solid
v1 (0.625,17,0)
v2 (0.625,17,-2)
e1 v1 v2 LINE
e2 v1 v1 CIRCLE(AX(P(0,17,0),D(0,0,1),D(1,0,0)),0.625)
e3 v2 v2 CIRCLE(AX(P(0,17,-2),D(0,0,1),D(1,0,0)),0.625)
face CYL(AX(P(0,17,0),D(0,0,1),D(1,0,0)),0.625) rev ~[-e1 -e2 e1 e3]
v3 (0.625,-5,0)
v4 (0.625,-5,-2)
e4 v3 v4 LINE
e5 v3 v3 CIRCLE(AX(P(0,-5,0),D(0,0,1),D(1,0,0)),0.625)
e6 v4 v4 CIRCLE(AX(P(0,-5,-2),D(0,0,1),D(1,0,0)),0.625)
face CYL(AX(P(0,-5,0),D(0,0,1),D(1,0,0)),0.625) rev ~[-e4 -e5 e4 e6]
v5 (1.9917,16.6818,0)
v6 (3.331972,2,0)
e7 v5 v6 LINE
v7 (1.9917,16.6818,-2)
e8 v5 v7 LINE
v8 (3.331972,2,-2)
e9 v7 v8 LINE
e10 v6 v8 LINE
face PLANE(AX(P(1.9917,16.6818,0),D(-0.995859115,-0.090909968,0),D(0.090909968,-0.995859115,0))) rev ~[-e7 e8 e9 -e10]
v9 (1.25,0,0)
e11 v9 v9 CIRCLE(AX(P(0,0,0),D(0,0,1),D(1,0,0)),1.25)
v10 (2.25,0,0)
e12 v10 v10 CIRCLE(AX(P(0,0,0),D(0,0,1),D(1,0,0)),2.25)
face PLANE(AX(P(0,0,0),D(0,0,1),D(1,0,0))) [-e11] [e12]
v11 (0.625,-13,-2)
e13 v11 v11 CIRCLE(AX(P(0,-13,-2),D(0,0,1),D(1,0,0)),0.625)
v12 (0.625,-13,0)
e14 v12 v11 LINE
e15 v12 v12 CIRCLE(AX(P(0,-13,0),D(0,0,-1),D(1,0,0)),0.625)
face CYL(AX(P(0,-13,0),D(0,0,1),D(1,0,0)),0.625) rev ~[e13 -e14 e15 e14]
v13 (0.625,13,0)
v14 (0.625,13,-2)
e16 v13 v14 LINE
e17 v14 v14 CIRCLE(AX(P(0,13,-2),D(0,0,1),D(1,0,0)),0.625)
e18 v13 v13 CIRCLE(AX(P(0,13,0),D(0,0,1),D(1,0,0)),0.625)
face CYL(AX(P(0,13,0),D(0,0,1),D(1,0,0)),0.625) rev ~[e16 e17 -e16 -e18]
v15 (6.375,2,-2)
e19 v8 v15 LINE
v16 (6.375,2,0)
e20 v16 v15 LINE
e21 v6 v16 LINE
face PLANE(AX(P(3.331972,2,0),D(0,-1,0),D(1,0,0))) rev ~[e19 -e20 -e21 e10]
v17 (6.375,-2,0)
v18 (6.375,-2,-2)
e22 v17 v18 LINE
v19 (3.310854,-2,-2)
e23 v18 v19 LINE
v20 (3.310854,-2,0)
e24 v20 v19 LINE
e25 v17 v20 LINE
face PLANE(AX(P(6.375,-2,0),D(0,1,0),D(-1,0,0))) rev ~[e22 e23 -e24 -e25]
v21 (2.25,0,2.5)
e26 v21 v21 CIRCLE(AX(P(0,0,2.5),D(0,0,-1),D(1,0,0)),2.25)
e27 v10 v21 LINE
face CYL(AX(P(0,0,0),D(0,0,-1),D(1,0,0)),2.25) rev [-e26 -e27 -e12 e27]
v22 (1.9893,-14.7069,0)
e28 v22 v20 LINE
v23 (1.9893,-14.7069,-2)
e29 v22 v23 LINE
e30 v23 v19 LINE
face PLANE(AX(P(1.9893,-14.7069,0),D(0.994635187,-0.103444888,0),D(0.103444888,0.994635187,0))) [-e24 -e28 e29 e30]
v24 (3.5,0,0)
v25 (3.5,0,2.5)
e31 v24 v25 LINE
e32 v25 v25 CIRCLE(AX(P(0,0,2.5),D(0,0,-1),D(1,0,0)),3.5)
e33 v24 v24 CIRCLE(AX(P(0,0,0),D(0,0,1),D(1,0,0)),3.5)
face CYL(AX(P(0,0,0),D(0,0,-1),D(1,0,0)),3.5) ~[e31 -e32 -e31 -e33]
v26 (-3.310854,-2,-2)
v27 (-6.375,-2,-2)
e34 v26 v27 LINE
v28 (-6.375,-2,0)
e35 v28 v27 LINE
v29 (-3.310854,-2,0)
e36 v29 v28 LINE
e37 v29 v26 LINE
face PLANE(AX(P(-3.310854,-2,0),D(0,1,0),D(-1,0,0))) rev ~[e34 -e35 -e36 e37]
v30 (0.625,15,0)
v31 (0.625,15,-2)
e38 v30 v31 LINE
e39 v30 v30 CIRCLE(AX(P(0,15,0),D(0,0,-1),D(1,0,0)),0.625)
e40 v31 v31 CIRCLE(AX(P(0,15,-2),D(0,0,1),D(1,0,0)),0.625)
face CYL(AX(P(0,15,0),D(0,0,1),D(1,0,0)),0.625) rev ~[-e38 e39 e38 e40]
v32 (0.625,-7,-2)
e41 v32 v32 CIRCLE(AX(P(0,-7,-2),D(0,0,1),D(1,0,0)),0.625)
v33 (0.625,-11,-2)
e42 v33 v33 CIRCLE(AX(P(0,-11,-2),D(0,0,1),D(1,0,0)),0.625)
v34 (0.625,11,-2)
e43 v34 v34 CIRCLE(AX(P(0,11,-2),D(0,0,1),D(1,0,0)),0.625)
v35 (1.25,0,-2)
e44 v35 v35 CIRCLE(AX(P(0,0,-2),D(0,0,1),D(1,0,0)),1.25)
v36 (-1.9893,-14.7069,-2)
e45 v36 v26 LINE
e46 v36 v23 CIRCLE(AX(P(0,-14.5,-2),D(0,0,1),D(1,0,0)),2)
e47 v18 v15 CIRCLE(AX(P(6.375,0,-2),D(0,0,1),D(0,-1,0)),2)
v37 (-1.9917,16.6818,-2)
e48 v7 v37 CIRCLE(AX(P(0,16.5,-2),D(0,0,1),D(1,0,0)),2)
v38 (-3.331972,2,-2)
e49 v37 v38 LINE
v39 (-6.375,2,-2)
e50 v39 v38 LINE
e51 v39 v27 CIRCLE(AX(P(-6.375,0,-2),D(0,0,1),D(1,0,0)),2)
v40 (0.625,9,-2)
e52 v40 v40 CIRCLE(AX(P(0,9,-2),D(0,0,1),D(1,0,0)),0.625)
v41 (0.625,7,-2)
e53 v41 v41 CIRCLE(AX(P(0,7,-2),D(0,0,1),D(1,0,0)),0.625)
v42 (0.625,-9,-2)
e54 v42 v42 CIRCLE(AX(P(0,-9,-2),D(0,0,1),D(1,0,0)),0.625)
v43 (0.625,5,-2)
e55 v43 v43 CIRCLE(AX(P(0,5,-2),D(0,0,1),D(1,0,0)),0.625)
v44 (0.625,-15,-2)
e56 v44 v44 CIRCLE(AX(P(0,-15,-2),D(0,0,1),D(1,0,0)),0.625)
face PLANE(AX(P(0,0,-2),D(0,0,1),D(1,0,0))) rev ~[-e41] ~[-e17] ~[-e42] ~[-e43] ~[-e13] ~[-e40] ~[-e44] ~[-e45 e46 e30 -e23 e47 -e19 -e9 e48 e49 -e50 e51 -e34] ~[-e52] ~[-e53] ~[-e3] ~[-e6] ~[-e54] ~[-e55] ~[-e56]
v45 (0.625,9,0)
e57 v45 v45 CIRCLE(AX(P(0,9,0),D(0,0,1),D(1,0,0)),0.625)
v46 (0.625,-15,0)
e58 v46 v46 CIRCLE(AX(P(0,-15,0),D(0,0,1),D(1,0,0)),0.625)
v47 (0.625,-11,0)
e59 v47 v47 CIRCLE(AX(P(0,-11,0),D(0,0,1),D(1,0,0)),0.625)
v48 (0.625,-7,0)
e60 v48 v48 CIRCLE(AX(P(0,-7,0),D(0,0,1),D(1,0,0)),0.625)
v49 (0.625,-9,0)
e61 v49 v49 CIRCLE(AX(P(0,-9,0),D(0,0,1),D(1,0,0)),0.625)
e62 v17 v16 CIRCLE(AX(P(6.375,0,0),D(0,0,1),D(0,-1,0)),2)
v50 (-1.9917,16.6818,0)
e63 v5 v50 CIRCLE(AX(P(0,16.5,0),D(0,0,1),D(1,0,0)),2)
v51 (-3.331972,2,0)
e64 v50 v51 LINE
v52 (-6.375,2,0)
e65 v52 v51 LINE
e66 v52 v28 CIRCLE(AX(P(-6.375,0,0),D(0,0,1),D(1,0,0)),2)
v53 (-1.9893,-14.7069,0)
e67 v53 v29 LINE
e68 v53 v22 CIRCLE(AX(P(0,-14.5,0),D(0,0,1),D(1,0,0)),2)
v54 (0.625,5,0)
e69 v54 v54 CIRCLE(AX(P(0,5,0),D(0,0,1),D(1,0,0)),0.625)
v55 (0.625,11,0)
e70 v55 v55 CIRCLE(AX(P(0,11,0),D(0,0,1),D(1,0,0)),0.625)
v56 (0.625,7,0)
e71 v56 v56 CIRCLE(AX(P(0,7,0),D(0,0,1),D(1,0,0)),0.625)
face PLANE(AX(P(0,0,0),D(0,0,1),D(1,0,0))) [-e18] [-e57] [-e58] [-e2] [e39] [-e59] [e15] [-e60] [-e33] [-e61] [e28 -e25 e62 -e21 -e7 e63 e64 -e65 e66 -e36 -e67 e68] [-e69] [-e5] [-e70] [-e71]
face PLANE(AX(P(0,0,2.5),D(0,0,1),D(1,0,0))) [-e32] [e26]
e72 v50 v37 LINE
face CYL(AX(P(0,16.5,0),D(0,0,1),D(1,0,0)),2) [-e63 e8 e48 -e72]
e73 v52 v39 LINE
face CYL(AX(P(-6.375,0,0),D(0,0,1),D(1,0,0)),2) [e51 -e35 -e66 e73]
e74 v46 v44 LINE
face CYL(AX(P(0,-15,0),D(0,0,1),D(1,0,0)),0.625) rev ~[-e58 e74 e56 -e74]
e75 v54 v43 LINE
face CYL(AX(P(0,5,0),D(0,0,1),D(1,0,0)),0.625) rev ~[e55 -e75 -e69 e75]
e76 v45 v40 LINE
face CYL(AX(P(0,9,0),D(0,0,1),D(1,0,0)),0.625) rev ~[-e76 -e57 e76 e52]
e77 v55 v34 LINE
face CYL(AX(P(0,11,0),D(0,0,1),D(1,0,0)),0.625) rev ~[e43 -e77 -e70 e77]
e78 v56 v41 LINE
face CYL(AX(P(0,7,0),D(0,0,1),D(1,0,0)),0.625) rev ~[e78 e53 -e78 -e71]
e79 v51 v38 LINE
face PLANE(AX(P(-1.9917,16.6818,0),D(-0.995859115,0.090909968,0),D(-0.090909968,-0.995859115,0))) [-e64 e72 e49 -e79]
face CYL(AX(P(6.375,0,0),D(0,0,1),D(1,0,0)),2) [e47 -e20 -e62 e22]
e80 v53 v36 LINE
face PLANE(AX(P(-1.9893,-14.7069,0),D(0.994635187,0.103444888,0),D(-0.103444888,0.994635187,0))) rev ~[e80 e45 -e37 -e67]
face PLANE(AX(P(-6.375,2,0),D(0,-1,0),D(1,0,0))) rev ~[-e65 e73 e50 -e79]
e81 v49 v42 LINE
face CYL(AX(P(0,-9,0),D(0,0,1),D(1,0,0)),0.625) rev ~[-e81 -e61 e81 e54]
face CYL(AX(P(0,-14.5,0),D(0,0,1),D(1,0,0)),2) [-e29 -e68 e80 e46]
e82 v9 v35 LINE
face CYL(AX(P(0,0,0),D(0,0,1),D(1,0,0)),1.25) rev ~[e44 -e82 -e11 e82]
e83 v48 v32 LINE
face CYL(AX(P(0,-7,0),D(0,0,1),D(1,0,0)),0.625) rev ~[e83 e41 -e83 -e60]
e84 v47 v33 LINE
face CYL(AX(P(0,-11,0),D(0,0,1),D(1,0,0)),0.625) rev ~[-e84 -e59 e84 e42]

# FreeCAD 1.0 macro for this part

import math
import FreeCAD as App
import Part
import Sketcher
from FreeCAD import Vector
Q = App.Units.Quantity

doc = App.newDocument("Part")
body = doc.addObject("PartDesign::Body", "Body")

# Sketch on XY plane
sketch1 = doc.addObject("Sketcher::SketchObject", "Sketch")
body.addObject(sketch1)
sketch1.AttachmentSupport = (doc.XY_Plane, [""])
sketch1.MapMode = "FlatFace"
sketch1.addGeometry(Part.Circle(Vector(0, 0, 0), Vector(0, 0, 1), 3.5), False)
sketch1.addGeometry(Part.Circle(Vector(0, 0, 0), Vector(0, 0, 1), 2.2), False)
sketch1.addConstraint(Sketcher.Constraint("Coincident", 0, 3, -1, 1))
sketch1.addConstraint(Sketcher.Constraint("Coincident", 1, 3, -1, 1))
sketch1.addConstraint(Sketcher.Constraint("Diameter", 0, Q("7 mm")))
sketch1.addConstraint(Sketcher.Constraint("Diameter", 1, Q("4.5 mm")))
pad1 = doc.addObject("PartDesign::Pad", "Pad")
body.addObject(pad1)
pad1.Profile = sketch1
pad1.Length = 2.5

# Sketch on XY plane
sketch2 = doc.addObject("Sketcher::SketchObject", "Sketch001")
body.addObject(sketch2)
sketch2.AttachmentSupport = (doc.XY_Plane, [""])
sketch2.MapMode = "FlatFace"
sketch2.addGeometry(Part.LineSegment(Vector(6.4, 2, 0), Vector(3.3, 2, 0)), False)
sketch2.addGeometry(Part.LineSegment(Vector(3.3, 2, 0), Vector(2, 16.7, 0)), False)
sketch2.addGeometry(Part.ArcOfCircle(Part.Circle(Vector(0, 16.5, 0), Vector(0, 0, 1), 2), math.radians(5), math.radians(175)), False)
sketch2.addGeometry(Part.LineSegment(Vector(-2, 16.7, 0), Vector(-3.3, 2, 0)), False)
sketch2.addGeometry(Part.LineSegment(Vector(-3.3, 2, 0), Vector(-6.4, 2, 0)), False)
sketch2.addGeometry(Part.ArcOfCircle(Part.Circle(Vector(-6.4, 0, 0), Vector(0, 0, 1), 2), math.radians(90), math.radians(270)), False)
sketch2.addGeometry(Part.LineSegment(Vector(-6.4, -2, 0), Vector(-3.3, -2, 0)), False)
sketch2.addGeometry(Part.LineSegment(Vector(-3.3, -2, 0), Vector(-2, -14.7, 0)), False)
sketch2.addGeometry(Part.ArcOfCircle(Part.Circle(Vector(0, -14.5, 0), Vector(0, 0, 1), 2), math.radians(-174), math.radians(-6)), False)
sketch2.addGeometry(Part.LineSegment(Vector(2, -14.7, 0), Vector(3.3, -2, 0)), False)
sketch2.addGeometry(Part.LineSegment(Vector(3.3, -2, 0), Vector(6.4, -2, 0)), False)
sketch2.addGeometry(Part.ArcOfCircle(Part.Circle(Vector(6.4, 0, 0), Vector(0, 0, 1), 2), math.radians(-90), math.radians(90)), False)
sketch2.addConstraint(Sketcher.Constraint("Coincident", 0, 2, 1, 1))
sketch2.addConstraint(Sketcher.Constraint("Tangent", 1, 2, 2, 1))
sketch2.addConstraint(Sketcher.Constraint("Tangent", 2, 2, 3, 1))
sketch2.addConstraint(Sketcher.Constraint("Coincident", 3, 2, 4, 1))
sketch2.addConstraint(Sketcher.Constraint("Tangent", 4, 2, 5, 1))
sketch2.addConstraint(Sketcher.Constraint("Tangent", 5, 2, 6, 1))
sketch2.addConstraint(Sketcher.Constraint("Coincident", 6, 2, 7, 1))
sketch2.addConstraint(Sketcher.Constraint("Tangent", 7, 2, 8, 1))
sketch2.addConstraint(Sketcher.Constraint("Tangent", 8, 2, 9, 1))
sketch2.addConstraint(Sketcher.Constraint("Coincident", 9, 2, 10, 1))
sketch2.addConstraint(Sketcher.Constraint("Tangent", 10, 2, 11, 1))
sketch2.addConstraint(Sketcher.Constraint("Tangent", 11, 2, 0, 1))
sketch2.addConstraint(Sketcher.Constraint("Horizontal", 0))
sketch2.addConstraint(Sketcher.Constraint("Horizontal", 4))
sketch2.addConstraint(Sketcher.Constraint("Horizontal", 6))
sketch2.addConstraint(Sketcher.Constraint("Horizontal", 10))
sketch2.addConstraint(Sketcher.Constraint("Equal", 2, 5))
sketch2.addConstraint(Sketcher.Constraint("Equal", 5, 8))
sketch2.addConstraint(Sketcher.Constraint("Equal", 8, 11))
sketch2.addConstraint(Sketcher.Constraint("Symmetric", 5, 3, 11, 3, -1, 1))
sketch2.addConstraint(Sketcher.Constraint("Symmetric", 1, 2, 2, 2, -2))
sketch2.addConstraint(Sketcher.Constraint("Symmetric", 7, 2, 8, 2, -2))
sketch2.addConstraint(Sketcher.Constraint("PointOnObject", 5, 3, -1))
sketch2.addConstraint(Sketcher.Constraint("Radius", 2, Q("2 mm")))
sketch2.addConstraint(Sketcher.Constraint("DistanceY", 8, 3, -1, 1, Q("14.5 mm")))
sketch2.addConstraint(Sketcher.Constraint("DistanceY", 0, 2, 2, 3, Q("14.5 mm")))
sketch2.addConstraint(Sketcher.Constraint("DistanceX", 0, 2, 0, 1, Q("3.043 mm")))
sketch2.addConstraint(Sketcher.Constraint("DistanceX", 5, 3, 11, 3, Q("12.75 mm")))
sketch2.addConstraint(Sketcher.Constraint("DistanceX", 6, 1, 6, 2, Q("3.0641 mm")))
pad2 = doc.addObject("PartDesign::Pad", "Pad001")
body.addObject(pad2)
pad2.Profile = sketch2
pad2.Length = 2
pad2.Reversed = True

# Sketch on XY plane
sketch3 = doc.addObject("Sketcher::SketchObject", "Sketch002")
body.addObject(sketch3)
sketch3.AttachmentSupport = (doc.XY_Plane, [""])
sketch3.MapMode = "FlatFace"
sketch3.addGeometry(Part.Circle(Vector(0, 15, 0), Vector(0, 0, 1), 0.6), False)
sketch3.addGeometry(Part.Circle(Vector(0, -13, 0), Vector(0, 0, 1), 0.6), False)
sketch3.addGeometry(Part.Circle(Vector(0, 0, 0), Vector(0, 0, 1), 1.2), False)
sketch3.addGeometry(Part.Circle(Vector(0, 5, 0), Vector(0, 0, 1), 0.6), False)
sketch3.addGeometry(Part.Circle(Vector(0, 7, 0), Vector(0, 0, 1), 0.6), False)
sketch3.addGeometry(Part.Circle(Vector(0, 9, 0), Vector(0, 0, 1), 0.6), False)
sketch3.addGeometry(Part.Circle(Vector(0, 11, 0), Vector(0, 0, 1), 0.6), False)
sketch3.addGeometry(Part.Circle(Vector(0, 13, 0), Vector(0, 0, 1), 0.6), False)
sketch3.addGeometry(Part.Circle(Vector(0, 17, 0), Vector(0, 0, 1), 0.6), False)
sketch3.addGeometry(Part.Circle(Vector(0, -5, 0), Vector(0, 0, 1), 0.6), False)
sketch3.addGeometry(Part.Circle(Vector(0, -7, 0), Vector(0, 0, 1), 0.6), False)
sketch3.addGeometry(Part.Circle(Vector(0, -9, 0), Vector(0, 0, 1), 0.6), False)
sketch3.addGeometry(Part.Circle(Vector(0, -11, 0), Vector(0, 0, 1), 0.6), False)
sketch3.addGeometry(Part.Circle(Vector(0, -15, 0), Vector(0, 0, 1), 0.6), False)
sketch3.addConstraint(Sketcher.Constraint("Coincident", 2, 3, -1, 1))
sketch3.addConstraint(Sketcher.Constraint("Equal", 0, 1))
sketch3.addConstraint(Sketcher.Constraint("Equal", 1, 3))
sketch3.addConstraint(Sketcher.Constraint("Equal", 3, 4))
sketch3.addConstraint(Sketcher.Constraint("Equal", 4, 5))
sketch3.addConstraint(Sketcher.Constraint("Equal", 5, 6))
sketch3.addConstraint(Sketcher.Constraint("Equal", 6, 7))
sketch3.addConstraint(Sketcher.Constraint("Equal", 7, 8))
sketch3.addConstraint(Sketcher.Constraint("Equal", 8, 9))
sketch3.addConstraint(Sketcher.Constraint("Equal", 9, 10))
sketch3.addConstraint(Sketcher.Constraint("Equal", 10, 11))
sketch3.addConstraint(Sketcher.Constraint("Equal", 11, 12))
sketch3.addConstraint(Sketcher.Constraint("Equal", 12, 13))
sketch3.addConstraint(Sketcher.Constraint("Symmetric", 1, 3, 7, 3, -1, 1))
sketch3.addConstraint(Sketcher.Constraint("Symmetric", 3, 3, 9, 3, -1, 1))
sketch3.addConstraint(Sketcher.Constraint("Symmetric", 4, 3, 10, 3, -1, 1))
sketch3.addConstraint(Sketcher.Constraint("Symmetric", 5, 3, 11, 3, -1, 1))
sketch3.addConstraint(Sketcher.Constraint("Symmetric", 6, 3, 12, 3, -1, 1))
sketch3.addConstraint(Sketcher.Constraint("Symmetric", 0, 3, 13, 3, -1, 1))
sketch3.addConstraint(Sketcher.Constraint("PointOnObject", 0, 3, -2))
sketch3.addConstraint(Sketcher.Constraint("PointOnObject", 1, 3, -2))
sketch3.addConstraint(Sketcher.Constraint("PointOnObject", 3, 3, -2))
sketch3.addConstraint(Sketcher.Constraint("PointOnObject", 4, 3, -2))
sketch3.addConstraint(Sketcher.Constraint("PointOnObject", 5, 3, -2))
sketch3.addConstraint(Sketcher.Constraint("PointOnObject", 6, 3, -2))
sketch3.addConstraint(Sketcher.Constraint("PointOnObject", 8, 3, -2))
sketch3.addConstraint(Sketcher.Constraint("Diameter", 2, Q("2.5 mm")))
sketch3.addConstraint(Sketcher.Constraint("Diameter", 0, Q("1.25 mm")))
sketch3.addConstraint(Sketcher.Constraint("DistanceY", -1, 1, 3, 3, Q("5 mm")))
sketch3.addConstraint(Sketcher.Constraint("DistanceY", -1, 1, 4, 3, Q("7 mm")))
sketch3.addConstraint(Sketcher.Constraint("DistanceY", 4, 3, 5, 3, Q("2 mm")))
sketch3.addConstraint(Sketcher.Constraint("DistanceY", 5, 3, 6, 3, Q("2 mm")))
sketch3.addConstraint(Sketcher.Constraint("DistanceY", 6, 3, 0, 3, Q("4 mm")))
sketch3.addConstraint(Sketcher.Constraint("DistanceY", 7, 3, 0, 3, Q("2 mm")))
sketch3.addConstraint(Sketcher.Constraint("DistanceY", 0, 3, 8, 3, Q("2 mm")))
pocket1 = doc.addObject("PartDesign::Pocket", "Pocket")
body.addObject(pocket1)
pocket1.Profile = sketch3
pocket1.Type = "ThroughAll"

doc.recompute()
